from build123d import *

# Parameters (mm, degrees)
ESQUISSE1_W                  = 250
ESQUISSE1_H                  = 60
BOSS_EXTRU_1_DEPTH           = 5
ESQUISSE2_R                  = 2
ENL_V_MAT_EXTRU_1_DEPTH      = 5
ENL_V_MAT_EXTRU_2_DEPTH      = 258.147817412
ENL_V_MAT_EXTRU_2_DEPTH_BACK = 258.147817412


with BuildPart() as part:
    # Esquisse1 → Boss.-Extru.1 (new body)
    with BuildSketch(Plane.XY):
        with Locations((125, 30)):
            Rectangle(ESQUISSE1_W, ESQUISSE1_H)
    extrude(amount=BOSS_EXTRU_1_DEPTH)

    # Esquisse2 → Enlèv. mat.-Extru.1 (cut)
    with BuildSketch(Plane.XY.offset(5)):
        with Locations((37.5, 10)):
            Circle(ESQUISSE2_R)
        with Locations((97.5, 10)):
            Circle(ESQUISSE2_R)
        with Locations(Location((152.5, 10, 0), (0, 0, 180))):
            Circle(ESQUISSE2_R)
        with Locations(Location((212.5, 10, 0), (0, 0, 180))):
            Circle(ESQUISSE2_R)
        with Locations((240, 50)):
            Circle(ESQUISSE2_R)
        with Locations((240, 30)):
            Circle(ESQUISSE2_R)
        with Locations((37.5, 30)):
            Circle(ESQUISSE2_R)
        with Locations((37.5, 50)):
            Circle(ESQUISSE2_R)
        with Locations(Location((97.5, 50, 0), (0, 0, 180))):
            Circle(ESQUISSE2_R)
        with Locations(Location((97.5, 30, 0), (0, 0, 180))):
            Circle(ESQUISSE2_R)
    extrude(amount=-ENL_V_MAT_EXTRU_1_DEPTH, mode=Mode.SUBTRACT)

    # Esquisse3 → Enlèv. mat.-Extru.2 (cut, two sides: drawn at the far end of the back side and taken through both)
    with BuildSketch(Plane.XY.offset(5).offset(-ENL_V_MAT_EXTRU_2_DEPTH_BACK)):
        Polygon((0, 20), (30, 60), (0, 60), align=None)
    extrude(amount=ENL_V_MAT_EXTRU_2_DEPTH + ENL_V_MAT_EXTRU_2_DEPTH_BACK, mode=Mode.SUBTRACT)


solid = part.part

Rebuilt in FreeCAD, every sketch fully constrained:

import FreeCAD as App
import Part
import Sketcher

V = App.Vector
Q = App.Units.Quantity

doc = App.newDocument("Part")
body = doc.addObject("PartDesign::Body", "Body")

# Sketch on XY plane
sketch1 = doc.addObject("Sketcher::SketchObject", "Sketch")
body.addObject(sketch1)
sketch1.AttachmentSupport = (doc.XY_Plane, [""])
sketch1.MapMode = "FlatFace"
sketch1.addGeometry([
    Part.LineSegment(V(0, 60, 0), V(0, 0, 0)),
    Part.LineSegment(V(0, 0, 0), V(250, 0, 0)),
    Part.LineSegment(V(250, 0, 0), V(250, 60, 0)),
    Part.LineSegment(V(250, 60, 0), V(0, 60, 0)),
], False)
sketch1.addConstraint([
    Sketcher.Constraint("Coincident", 0, 2, 1, 1),
    Sketcher.Constraint("Coincident", 1, 2, 2, 1),
    Sketcher.Constraint("Coincident", 2, 2, 3, 1),
    Sketcher.Constraint("Coincident", 3, 2, 0, 1),
    Sketcher.Constraint("Vertical", 0),
    Sketcher.Constraint("Horizontal", 1),
    Sketcher.Constraint("Vertical", 2),
    Sketcher.Constraint("Horizontal", 3),
    Sketcher.Constraint("Coincident", 0, 2, -1, 1),
    Sketcher.Constraint("DistanceX", 1, 1, 1, 2, Q("250 mm")),
    Sketcher.Constraint("DistanceY", 0, 2, 0, 1, Q("60 mm")),
])
pad1 = doc.addObject("PartDesign::Pad", "Pad")
body.addObject(pad1)
pad1.Profile = sketch1
pad1.Length = 5

# Sketch on XY plane
sketch2 = doc.addObject("Sketcher::SketchObject", "Sketch001")
body.addObject(sketch2)
sketch2.AttachmentSupport = (doc.XY_Plane, [""])
sketch2.MapMode = "FlatFace"
sketch2.AttachmentOffset = App.Placement(V(0, 0, 5), App.Rotation())
sketch2.addGeometry([
    Part.Circle(V(37.5, 10, 0), V(0, 0, 1), 2),  # 0
    Part.Circle(V(97.5, 10, 0), V(0, 0, 1), 2),  # 1
    Part.Circle(V(152.5, 10, 0), V(0, 0, 1), 2),  # 2
    Part.Circle(V(212.5, 10, 0), V(0, 0, 1), 2),  # 3
    Part.Circle(V(240, 50, 0), V(0, 0, 1), 2),  # 4
    Part.Circle(V(240, 30, 0), V(0, 0, 1), 2),  # 5
    Part.Circle(V(37.5, 30, 0), V(0, 0, 1), 2),  # 6
    Part.Circle(V(37.5, 50, 0), V(0, 0, 1), 2),  # 7
    Part.Circle(V(97.5, 50, 0), V(0, 0, 1), 2),  # 8
    Part.Circle(V(97.5, 30, 0), V(0, 0, 1), 2),  # 9
], False)
sketch2.addConstraint([
    Sketcher.Constraint("Equal", 0, 1),
    Sketcher.Constraint("Equal", 1, 2),
    Sketcher.Constraint("Equal", 2, 3),
    Sketcher.Constraint("Equal", 3, 4),
    Sketcher.Constraint("Equal", 4, 5),
    Sketcher.Constraint("Equal", 5, 6),
    Sketcher.Constraint("Equal", 6, 7),
    Sketcher.Constraint("Equal", 7, 8),
    Sketcher.Constraint("Equal", 8, 9),
    Sketcher.Constraint("Horizontal", 0, 3, 1, 3),
    Sketcher.Constraint("Horizontal", 1, 3, 2, 3),
    Sketcher.Constraint("Horizontal", 2, 3, 3, 3),
    Sketcher.Constraint("Horizontal", 5, 3, 6, 3),
    Sketcher.Constraint("Horizontal", 4, 3, 7, 3),
    Sketcher.Constraint("Horizontal", 7, 3, 8, 3),
    Sketcher.Constraint("Horizontal", 6, 3, 9, 3),
    Sketcher.Constraint("Vertical", 4, 3, 5, 3),
    Sketcher.Constraint("Vertical", 0, 3, 6, 3),
    Sketcher.Constraint("Vertical", 6, 3, 7, 3),
    Sketcher.Constraint("Vertical", 1, 3, 8, 3),
    Sketcher.Constraint("Vertical", 8, 3, 9, 3),
    Sketcher.Constraint("Diameter", 0, Q("4 mm")),
    Sketcher.Constraint("DistanceY", -1, 1, 0, 3, Q("10 mm")),
    Sketcher.Constraint("DistanceX", -1, 1, 4, 3, Q("240 mm")),
    Sketcher.Constraint("DistanceY", -1, 1, 4, 3, Q("50 mm")),
    Sketcher.Constraint("DistanceY", -1, 1, 5, 3, Q("30 mm")),
    Sketcher.Constraint("DistanceX", 0, 3, 1, 3, Q("60 mm")),
    Sketcher.Constraint("DistanceX", 1, 3, 2, 3, Q("55 mm")),
    Sketcher.Constraint("DistanceX", 2, 3, 3, 3, Q("60 mm")),
    Sketcher.Constraint("DistanceX", -1, 1, 0, 3, Q("37.5 mm")),
])
pocket1 = doc.addObject("PartDesign::Pocket", "Pocket")
body.addObject(pocket1)
pocket1.Profile = sketch2
pocket1.Length = 5

# Sketch on XY plane
sketch3 = doc.addObject("Sketcher::SketchObject", "Sketch002")
body.addObject(sketch3)
sketch3.AttachmentSupport = (doc.XY_Plane, [""])
sketch3.MapMode = "FlatFace"
sketch3.AttachmentOffset = App.Placement(V(0, 0, 5), App.Rotation())
sketch3.addGeometry([
    Part.LineSegment(V(0, 20, 0), V(30, 60, 0)),
    Part.LineSegment(V(30, 60, 0), V(0, 60, 0)),
    Part.LineSegment(V(0, 60, 0), V(0, 20, 0)),
], False)
sketch3.addConstraint([
    Sketcher.Constraint("Coincident", 0, 2, 1, 1),
    Sketcher.Constraint("Coincident", 1, 2, 2, 1),
    Sketcher.Constraint("Coincident", 2, 2, 0, 1),
    Sketcher.Constraint("Horizontal", 1),
    Sketcher.Constraint("Vertical", 2),
    Sketcher.Constraint("PointOnObject", 1, 2, -2),
    Sketcher.Constraint("DistanceX", 1, 2, 1, 1, Q("30 mm")),
    Sketcher.Constraint("DistanceY", 2, 2, 2, 1, Q("40 mm")),
    Sketcher.Constraint("DistanceY", -1, 1, 0, 2, Q("60 mm")),
])
pocket2 = doc.addObject("PartDesign::Pocket", "Pocket001")
body.addObject(pocket2)
pocket2.Profile = sketch3
pocket2.Type = "ThroughAll"
pocket2.Midplane = True

doc.recompute()
